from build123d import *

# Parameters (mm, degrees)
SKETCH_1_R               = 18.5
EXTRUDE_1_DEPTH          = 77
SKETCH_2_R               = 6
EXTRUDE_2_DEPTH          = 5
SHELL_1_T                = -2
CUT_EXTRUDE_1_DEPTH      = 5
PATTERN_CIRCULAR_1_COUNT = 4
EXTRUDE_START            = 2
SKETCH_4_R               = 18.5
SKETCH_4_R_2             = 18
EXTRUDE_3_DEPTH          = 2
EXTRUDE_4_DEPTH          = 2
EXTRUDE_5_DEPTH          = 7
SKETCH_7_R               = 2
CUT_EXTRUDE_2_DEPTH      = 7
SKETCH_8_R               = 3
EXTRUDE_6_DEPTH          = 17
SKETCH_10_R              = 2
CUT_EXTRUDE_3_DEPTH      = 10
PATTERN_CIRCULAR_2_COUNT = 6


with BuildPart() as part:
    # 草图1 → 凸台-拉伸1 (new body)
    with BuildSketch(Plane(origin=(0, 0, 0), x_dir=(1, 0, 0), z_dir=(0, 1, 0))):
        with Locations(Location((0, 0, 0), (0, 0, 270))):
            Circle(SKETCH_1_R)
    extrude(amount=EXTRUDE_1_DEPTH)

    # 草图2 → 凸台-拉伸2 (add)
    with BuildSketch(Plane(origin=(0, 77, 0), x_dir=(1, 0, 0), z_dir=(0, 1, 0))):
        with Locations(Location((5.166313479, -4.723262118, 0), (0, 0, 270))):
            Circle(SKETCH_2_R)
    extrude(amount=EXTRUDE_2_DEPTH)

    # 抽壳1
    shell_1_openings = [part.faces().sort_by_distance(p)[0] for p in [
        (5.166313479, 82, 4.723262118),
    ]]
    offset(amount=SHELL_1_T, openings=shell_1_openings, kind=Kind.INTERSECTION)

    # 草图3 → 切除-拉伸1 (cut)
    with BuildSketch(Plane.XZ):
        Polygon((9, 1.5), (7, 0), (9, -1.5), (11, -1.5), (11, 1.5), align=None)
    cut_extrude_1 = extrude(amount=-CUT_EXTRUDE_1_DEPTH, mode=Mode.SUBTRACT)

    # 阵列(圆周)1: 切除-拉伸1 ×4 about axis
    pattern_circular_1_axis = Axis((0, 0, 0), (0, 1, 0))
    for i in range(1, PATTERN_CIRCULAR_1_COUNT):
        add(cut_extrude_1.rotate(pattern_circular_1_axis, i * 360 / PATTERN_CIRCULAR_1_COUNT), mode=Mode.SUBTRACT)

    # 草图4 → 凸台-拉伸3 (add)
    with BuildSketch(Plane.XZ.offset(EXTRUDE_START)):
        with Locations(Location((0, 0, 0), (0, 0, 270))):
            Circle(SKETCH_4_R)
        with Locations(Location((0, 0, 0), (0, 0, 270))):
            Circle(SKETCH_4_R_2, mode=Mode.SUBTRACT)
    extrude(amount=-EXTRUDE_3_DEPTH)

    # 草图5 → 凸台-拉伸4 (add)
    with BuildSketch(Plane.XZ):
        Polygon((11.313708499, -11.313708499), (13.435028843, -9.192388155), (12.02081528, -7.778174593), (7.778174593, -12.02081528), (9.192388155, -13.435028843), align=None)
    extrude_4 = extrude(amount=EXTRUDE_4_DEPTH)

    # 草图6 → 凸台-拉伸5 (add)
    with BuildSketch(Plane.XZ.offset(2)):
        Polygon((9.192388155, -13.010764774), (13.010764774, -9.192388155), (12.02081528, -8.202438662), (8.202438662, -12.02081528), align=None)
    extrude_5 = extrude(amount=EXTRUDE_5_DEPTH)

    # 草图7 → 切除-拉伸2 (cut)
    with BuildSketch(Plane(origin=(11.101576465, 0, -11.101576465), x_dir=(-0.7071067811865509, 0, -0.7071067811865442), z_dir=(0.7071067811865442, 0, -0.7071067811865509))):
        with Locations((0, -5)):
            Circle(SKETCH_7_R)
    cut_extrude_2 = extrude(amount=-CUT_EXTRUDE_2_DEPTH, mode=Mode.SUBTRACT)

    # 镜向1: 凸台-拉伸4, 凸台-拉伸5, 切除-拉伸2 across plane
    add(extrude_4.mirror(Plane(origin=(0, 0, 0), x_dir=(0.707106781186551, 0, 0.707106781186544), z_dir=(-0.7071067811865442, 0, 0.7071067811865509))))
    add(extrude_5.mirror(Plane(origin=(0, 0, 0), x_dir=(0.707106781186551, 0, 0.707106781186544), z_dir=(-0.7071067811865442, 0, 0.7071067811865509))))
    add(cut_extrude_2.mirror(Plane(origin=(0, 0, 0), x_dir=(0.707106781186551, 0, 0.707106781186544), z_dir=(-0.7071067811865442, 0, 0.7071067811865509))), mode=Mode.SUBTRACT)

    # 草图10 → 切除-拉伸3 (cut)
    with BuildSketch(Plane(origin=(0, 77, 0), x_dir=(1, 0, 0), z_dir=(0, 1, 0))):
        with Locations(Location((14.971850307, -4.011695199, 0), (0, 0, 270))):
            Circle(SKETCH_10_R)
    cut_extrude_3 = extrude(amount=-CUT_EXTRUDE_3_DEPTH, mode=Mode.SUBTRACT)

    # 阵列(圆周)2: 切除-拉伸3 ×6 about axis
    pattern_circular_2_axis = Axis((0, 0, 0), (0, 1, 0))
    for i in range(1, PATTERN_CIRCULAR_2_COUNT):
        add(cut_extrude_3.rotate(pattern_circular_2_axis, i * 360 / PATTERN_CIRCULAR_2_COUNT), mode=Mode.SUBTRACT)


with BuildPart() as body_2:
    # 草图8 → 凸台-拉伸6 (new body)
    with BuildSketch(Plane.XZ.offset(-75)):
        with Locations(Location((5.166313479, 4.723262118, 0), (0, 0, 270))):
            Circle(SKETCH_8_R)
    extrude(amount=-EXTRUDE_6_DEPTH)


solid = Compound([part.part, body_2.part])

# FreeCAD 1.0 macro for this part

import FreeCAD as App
import Part
import Sketcher
from FreeCAD import Vector
Q = App.Units.Quantity


def faces_at(feature, points):
    """Names of the faces that lie closest to the given points."""
    faces = feature.Shape.Faces
    near = lambda p: min(range(len(faces)), key=lambda i: faces[i].distToShape(Part.Vertex(*p))[0])
    return sorted({f"Face{near(p) + 1}" for p in points})


def add_polygon(sketch, points):
    """Adds a closed chain of lines whose ends are joined by coincident constraints."""
    first, n = sketch.GeometryCount, len(points)
    for a, b in zip(points, points[1:] + points[:1]):
        sketch.addGeometry(Part.LineSegment(App.Vector(*a, 0), App.Vector(*b, 0)), False)
    for i in range(n):
        sketch.addConstraint(Sketcher.Constraint("Coincident", first + i, 2, first + (i + 1) % n, 1))

doc = App.newDocument("Part")
body = doc.addObject("PartDesign::Body", "Body")

sketch1 = body.newObject("Sketcher::SketchObject", "Sketch")
sketch1.AttachmentSupport = (doc.getObject("XZ_Plane"), [""])
sketch1.MapMode = "FlatFace"
sketch1.addGeometry(Part.Circle(Vector(0, 0, 0), Vector(0, 0, 1), 18.5), False)
sketch1.addConstraint([
    Sketcher.Constraint("Coincident", 0, 3, -1, 1),
    Sketcher.Constraint("Diameter", 0, Q("37 mm")),
])
pad1 = body.newObject("PartDesign::Pad", "Pad")
pad1.Profile = sketch1
pad1.Length = 77
pad1.Reversed = True

sketch2 = body.newObject("Sketcher::SketchObject", "Sketch001")
sketch2.AttachmentSupport = (doc.getObject("XZ_Plane"), [""])
sketch2.MapMode = "FlatFace"
sketch2.AttachmentOffset = App.Placement(Vector(0, 0, -77), App.Rotation())
sketch2.addGeometry(Part.Circle(Vector(5.166313, 4.723262, 0), Vector(0, 0, 1), 6), False)
sketch2.addConstraint([
    Sketcher.Constraint("Diameter", 0, Q("12 mm")),
    Sketcher.Constraint("DistanceX", -1, 1, 0, 3, Q("5.166313 mm")),
    Sketcher.Constraint("DistanceY", -1, 1, 0, 3, Q("4.723262 mm")),
])
pad2 = body.newObject("PartDesign::Pad", "Pad001")
pad2.Profile = sketch2
pad2.Length = 5
pad2.Reversed = True
doc.recompute()

thickness = body.newObject("PartDesign::Thickness", "Thickness")
thickness.Base = (pad2, faces_at(pad2, [(5.166, 82, 4.723)]))
thickness.Value = 2
thickness.Reversed = True
thickness.Join = "Intersection"

sketch3 = body.newObject("Sketcher::SketchObject", "Sketch002")
sketch3.AttachmentSupport = (doc.getObject("XZ_Plane"), [""])
sketch3.MapMode = "FlatFace"
add_polygon(sketch3, [(9, 1.5), (7, 0), (9, -1.5), (11, -1.5), (11, 1.5)])
sketch3.addConstraint([
    Sketcher.Constraint("Horizontal", 2),
    Sketcher.Constraint("Vertical", 3),
    Sketcher.Constraint("Horizontal", 4),
    Sketcher.Constraint("Symmetric", 1, 2, 4, 2, -1),
    Sketcher.Constraint("PointOnObject", 0, 2, -1),
    Sketcher.Constraint("DistanceX", 2, 1, 2, 2, Q("2 mm")),
    Sketcher.Constraint("DistanceY", 3, 1, 3, 2, Q("3 mm")),
    Sketcher.Constraint("DistanceX", -1, 1, 0, 2, Q("7 mm")),
    Sketcher.Constraint("DistanceX", -1, 1, 1, 2, Q("9 mm")),
])
pocket1 = body.newObject("PartDesign::Pocket", "Pocket")
pocket1.Profile = sketch3
pocket1.Length = 5
doc.recompute()

polarpattern = body.newObject("PartDesign::PolarPattern", "PolarPattern")
polarpattern.Originals = [pocket1]
polarpattern.Axis = (doc.getObject("Y_Axis"), [""])
polarpattern.Angle = 360
polarpattern.Occurrences = 4
body.Tip = polarpattern

sketch4 = body.newObject("Sketcher::SketchObject", "Sketch003")
sketch4.AttachmentSupport = (doc.getObject("XZ_Plane"), [""])
sketch4.MapMode = "FlatFace"
sketch4.AttachmentOffset = App.Placement(Vector(0, 0, 2), App.Rotation())
sketch4.addGeometry([
    Part.Circle(Vector(0, 0, 0), Vector(0, 0, 1), 18.5),
    Part.Circle(Vector(0, 0, 0), Vector(0, 0, 1), 18),
], False)
sketch4.addConstraint([
    Sketcher.Constraint("Coincident", 0, 3, -1, 1),
    Sketcher.Constraint("Coincident", 1, 3, -1, 1),
    Sketcher.Constraint("Diameter", 0, Q("37 mm")),
    Sketcher.Constraint("Diameter", 1, Q("36 mm")),
])
pad3 = body.newObject("PartDesign::Pad", "Pad002")
pad3.Profile = sketch4
pad3.Length = 2
pad3.Reversed = True

sketch5 = body.newObject("Sketcher::SketchObject", "Sketch004")
sketch5.AttachmentSupport = (doc.getObject("XZ_Plane"), [""])
sketch5.MapMode = "FlatFace"
add_polygon(sketch5, [(13.435029, -9.192388), (12.020815, -7.778175), (7.778175, -12.020815), (9.192388, -13.435029)])
sketch5.addConstraint([
    Sketcher.Constraint("Perpendicular", 0, 1),
    Sketcher.Constraint("Perpendicular", 1, 2),
    Sketcher.Constraint("Perpendicular", 2, 3),
    Sketcher.Constraint("Angle", 0, Q("135 deg")),
    Sketcher.Constraint("Distance", 0, Q("2 mm")),
    Sketcher.Constraint("Distance", 1, Q("6 mm")),
    Sketcher.Constraint("DistanceX", -1, 1, 2, 2, Q("9.192388 mm")),
    Sketcher.Constraint("DistanceY", 2, 2, -1, 1, Q("13.435029 mm")),
])
pad4 = body.newObject("PartDesign::Pad", "Pad003")
pad4.Profile = sketch5
pad4.Length = 2

sketch6 = body.newObject("Sketcher::SketchObject", "Sketch005")
sketch6.AttachmentSupport = (doc.getObject("XZ_Plane"), [""])
sketch6.MapMode = "FlatFace"
sketch6.AttachmentOffset = App.Placement(Vector(0, 0, 2), App.Rotation())
add_polygon(sketch6, [(9.192388, -13.010765), (13.010765, -9.192388), (12.020815, -8.202439), (8.202439, -12.020815)])
sketch6.addConstraint([
    Sketcher.Constraint("Perpendicular", 0, 1),
    Sketcher.Constraint("Perpendicular", 1, 2),
    Sketcher.Constraint("Perpendicular", 2, 3),
    Sketcher.Constraint("Angle", 0, Q("45 deg")),
    Sketcher.Constraint("Distance", 0, Q("5.4 mm")),
    Sketcher.Constraint("Distance", 1, Q("1.4 mm")),
    Sketcher.Constraint("DistanceY", 0, 2, -1, 1, Q("9.192388 mm")),
    Sketcher.Constraint("DistanceX", -1, 1, 2, 2, Q("8.202439 mm")),
])
pad5 = body.newObject("PartDesign::Pad", "Pad004")
pad5.Profile = sketch6
pad5.Length = 7

sketch7 = body.newObject("Sketcher::SketchObject", "Sketch006")
sketch7.Placement = App.Placement(Vector(11.101576, 0, -11.101576), App.Rotation(Vector(-0.707106781, 0, -0.707106781), Vector(0, 0.999999999, 0), Vector(0.707106781, 0, -0.707106781), "ZXY"))
sketch7.addGeometry(Part.Circle(Vector(0, -5, 0), Vector(0, 0, 1), 2), False)
sketch7.addConstraint([
    Sketcher.Constraint("PointOnObject", 0, 3, -2),
    Sketcher.Constraint("Diameter", 0, Q("4 mm")),
    Sketcher.Constraint("DistanceY", 0, 3, -1, 1, Q("5 mm")),
])
pocket2 = body.newObject("PartDesign::Pocket", "Pocket001")
pocket2.Profile = sketch7
pocket2.Length = 7
doc.recompute()

datumplane = body.newObject("PartDesign::Plane", "DatumPlane")
datumplane.Placement = App.Placement(Vector(0, 0, 0), App.Rotation(Vector(-0.707106781, 0, -0.707106781), Vector(0, -1, 0), Vector(-0.707106781, 0, 0.707106781), "ZXY"))
mirrored = body.newObject("PartDesign::Mirrored", "Mirrored")
mirrored.Originals = [pad4, pad5, pocket2]
mirrored.MirrorPlane = (datumplane, [""])
body.Tip = mirrored

sketch8 = body.newObject("Sketcher::SketchObject", "Sketch007")
sketch8.AttachmentSupport = (doc.getObject("XZ_Plane"), [""])
sketch8.MapMode = "FlatFace"
sketch8.AttachmentOffset = App.Placement(Vector(0, 0, -77), App.Rotation())
sketch8.addGeometry(Part.Circle(Vector(14.97185, 4.011695, 0), Vector(0, 0, 1), 2), False)
sketch8.addConstraint([
    Sketcher.Constraint("Diameter", 0, Q("4 mm")),
    Sketcher.Constraint("DistanceX", -1, 1, 0, 3, Q("14.97185 mm")),
    Sketcher.Constraint("DistanceY", -1, 1, 0, 3, Q("4.011695 mm")),
])
pocket3 = body.newObject("PartDesign::Pocket", "Pocket002")
pocket3.Profile = sketch8
pocket3.Length = 10
pocket3.Reversed = True
doc.recompute()

polarpattern2 = body.newObject("PartDesign::PolarPattern", "PolarPattern001")
polarpattern2.Originals = [pocket3]
polarpattern2.Axis = (doc.getObject("Y_Axis"), [""])
polarpattern2.Angle = 360
polarpattern2.Occurrences = 6
body.Tip = polarpattern2
body2 = doc.addObject("PartDesign::Body", "Body001")

sketch9 = body2.newObject("Sketcher::SketchObject", "Sketch008")
sketch9.AttachmentSupport = (doc.getObject("XZ_Plane001"), [""])
sketch9.MapMode = "FlatFace"
sketch9.AttachmentOffset = App.Placement(Vector(0, 0, -75), App.Rotation())
sketch9.addGeometry(Part.Circle(Vector(5.166313, 4.723262, 0), Vector(0, 0, 1), 3), False)
sketch9.addConstraint([
    Sketcher.Constraint("Diameter", 0, Q("6 mm")),
    Sketcher.Constraint("DistanceX", -1, 1, 0, 3, Q("5.166313 mm")),
    Sketcher.Constraint("DistanceY", -1, 1, 0, 3, Q("4.723262 mm")),
])
pad6 = body2.newObject("PartDesign::Pad", "Pad005")
pad6.Profile = sketch9
pad6.Length = 17
pad6.Reversed = True

doc.recompute()
